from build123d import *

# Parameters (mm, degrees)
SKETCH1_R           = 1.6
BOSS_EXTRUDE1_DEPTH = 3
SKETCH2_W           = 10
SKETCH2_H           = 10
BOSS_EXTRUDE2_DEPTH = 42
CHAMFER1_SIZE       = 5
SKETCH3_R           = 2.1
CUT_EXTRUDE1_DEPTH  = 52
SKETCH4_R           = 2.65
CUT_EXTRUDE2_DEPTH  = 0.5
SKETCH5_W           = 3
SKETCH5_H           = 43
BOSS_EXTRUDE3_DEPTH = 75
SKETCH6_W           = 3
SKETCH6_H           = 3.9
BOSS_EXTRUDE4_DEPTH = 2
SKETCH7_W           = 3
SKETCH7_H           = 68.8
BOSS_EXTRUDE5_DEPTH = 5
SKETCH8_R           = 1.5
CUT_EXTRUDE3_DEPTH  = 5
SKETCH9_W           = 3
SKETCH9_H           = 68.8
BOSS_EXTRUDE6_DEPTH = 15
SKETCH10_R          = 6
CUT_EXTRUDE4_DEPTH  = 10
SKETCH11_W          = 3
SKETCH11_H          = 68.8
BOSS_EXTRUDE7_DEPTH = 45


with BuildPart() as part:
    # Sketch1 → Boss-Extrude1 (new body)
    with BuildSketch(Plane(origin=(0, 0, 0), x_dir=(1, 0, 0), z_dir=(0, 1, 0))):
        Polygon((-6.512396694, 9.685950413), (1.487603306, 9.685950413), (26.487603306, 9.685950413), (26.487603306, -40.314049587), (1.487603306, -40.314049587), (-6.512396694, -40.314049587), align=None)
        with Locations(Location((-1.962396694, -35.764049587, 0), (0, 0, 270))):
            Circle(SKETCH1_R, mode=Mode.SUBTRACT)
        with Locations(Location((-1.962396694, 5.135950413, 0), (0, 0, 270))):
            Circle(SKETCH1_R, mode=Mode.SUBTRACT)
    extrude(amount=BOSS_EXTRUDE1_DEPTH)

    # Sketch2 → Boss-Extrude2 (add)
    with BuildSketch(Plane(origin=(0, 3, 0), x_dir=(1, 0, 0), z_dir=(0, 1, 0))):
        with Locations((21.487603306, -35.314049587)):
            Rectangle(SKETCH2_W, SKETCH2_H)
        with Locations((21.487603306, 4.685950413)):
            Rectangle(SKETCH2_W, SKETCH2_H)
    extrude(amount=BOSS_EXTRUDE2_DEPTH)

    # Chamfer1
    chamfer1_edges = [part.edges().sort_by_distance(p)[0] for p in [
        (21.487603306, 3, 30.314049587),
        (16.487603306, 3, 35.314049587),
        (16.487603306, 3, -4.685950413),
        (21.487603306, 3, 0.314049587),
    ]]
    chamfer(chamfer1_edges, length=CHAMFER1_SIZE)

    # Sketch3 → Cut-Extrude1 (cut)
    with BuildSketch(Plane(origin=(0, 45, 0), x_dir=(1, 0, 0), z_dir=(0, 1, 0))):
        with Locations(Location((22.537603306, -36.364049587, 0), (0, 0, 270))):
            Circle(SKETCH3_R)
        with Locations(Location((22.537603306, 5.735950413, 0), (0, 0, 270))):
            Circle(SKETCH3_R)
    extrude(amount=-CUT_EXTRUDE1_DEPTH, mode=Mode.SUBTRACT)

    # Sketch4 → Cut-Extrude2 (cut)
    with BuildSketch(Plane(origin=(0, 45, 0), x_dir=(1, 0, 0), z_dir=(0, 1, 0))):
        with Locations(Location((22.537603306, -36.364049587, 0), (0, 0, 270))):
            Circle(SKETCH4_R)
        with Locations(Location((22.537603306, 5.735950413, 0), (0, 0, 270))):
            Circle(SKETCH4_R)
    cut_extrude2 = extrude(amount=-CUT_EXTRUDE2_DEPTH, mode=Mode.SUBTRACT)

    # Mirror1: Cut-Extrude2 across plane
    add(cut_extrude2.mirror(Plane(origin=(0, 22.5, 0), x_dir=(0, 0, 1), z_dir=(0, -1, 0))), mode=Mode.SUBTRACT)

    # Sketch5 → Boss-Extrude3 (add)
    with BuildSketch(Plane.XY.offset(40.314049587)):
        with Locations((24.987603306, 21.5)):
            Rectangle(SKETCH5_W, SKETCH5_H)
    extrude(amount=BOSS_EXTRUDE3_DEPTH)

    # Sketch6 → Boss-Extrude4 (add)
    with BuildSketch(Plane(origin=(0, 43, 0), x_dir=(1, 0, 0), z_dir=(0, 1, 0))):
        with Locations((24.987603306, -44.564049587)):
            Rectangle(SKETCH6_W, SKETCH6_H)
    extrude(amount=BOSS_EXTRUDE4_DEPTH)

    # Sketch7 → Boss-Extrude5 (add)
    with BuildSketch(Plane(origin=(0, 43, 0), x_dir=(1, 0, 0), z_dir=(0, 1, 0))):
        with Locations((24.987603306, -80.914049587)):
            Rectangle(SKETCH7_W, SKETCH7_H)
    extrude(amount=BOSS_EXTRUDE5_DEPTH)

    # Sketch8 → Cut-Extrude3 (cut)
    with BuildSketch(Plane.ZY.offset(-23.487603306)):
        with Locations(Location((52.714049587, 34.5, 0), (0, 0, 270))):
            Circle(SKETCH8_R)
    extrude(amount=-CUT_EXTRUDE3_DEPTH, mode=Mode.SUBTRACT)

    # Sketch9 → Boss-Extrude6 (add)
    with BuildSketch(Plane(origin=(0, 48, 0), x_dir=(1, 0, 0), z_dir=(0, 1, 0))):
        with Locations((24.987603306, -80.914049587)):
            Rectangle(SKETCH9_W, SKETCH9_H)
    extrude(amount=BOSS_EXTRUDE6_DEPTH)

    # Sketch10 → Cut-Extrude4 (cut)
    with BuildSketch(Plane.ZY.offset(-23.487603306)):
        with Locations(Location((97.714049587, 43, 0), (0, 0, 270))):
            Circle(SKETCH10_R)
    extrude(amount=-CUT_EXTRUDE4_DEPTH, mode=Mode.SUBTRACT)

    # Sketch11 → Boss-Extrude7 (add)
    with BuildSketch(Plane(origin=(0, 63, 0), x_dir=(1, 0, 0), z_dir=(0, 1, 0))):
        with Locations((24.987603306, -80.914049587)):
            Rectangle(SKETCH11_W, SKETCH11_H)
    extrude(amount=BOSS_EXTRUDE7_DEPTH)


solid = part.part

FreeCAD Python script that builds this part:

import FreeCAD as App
import Part
import Sketcher
from FreeCAD import Vector


def edges_at(feature, points):
    """Names of the edges that pass closest to the given points."""
    edges = feature.Shape.Edges
    near = lambda p: min(range(len(edges)), key=lambda i: edges[i].distToShape(Part.Vertex(*p))[0])
    return sorted({f"Edge{near(p) + 1}" for p in points})

doc = App.newDocument("Part")
body = doc.addObject("PartDesign::Body", "Body")

# Sketch on XZ plane
sketch1 = body.newObject("Sketcher::SketchObject", "Sketch")
sketch1.AttachmentSupport = (doc.getObject("XZ_Plane"), [""])
sketch1.MapMode = "FlatFace"
sketch1.addGeometry([
    Part.LineSegment(Vector(26.487603, -9.68595, 0), Vector(-6.512397, -9.68595, 0)),  # 0
    Part.LineSegment(Vector(-6.512397, -9.68595, 0), Vector(-6.512397, 40.31405, 0)),  # 1
    Part.LineSegment(Vector(-6.512397, 40.31405, 0), Vector(26.487603, 40.31405, 0)),  # 2
    Part.LineSegment(Vector(26.487603, 40.31405, 0), Vector(26.487603, -9.68595, 0)),  # 3
    Part.Circle(Vector(-1.962397, 35.76405, 0), Vector(0, 0, 1), 1.6),  # 4
    Part.Circle(Vector(-1.962397, -5.13595, 0), Vector(0, 0, 1), 1.6),  # 5
], False)
sketch1.addConstraint([
    Sketcher.Constraint("Coincident", 0, 2, 1, 1),
    Sketcher.Constraint("Coincident", 1, 2, 2, 1),
    Sketcher.Constraint("Coincident", 2, 2, 3, 1),
    Sketcher.Constraint("Coincident", 3, 2, 0, 1),
    Sketcher.Constraint("Horizontal", 0),
    Sketcher.Constraint("Vertical", 1),
    Sketcher.Constraint("Horizontal", 2),
    Sketcher.Constraint("Vertical", 3),
    Sketcher.Constraint("Equal", 4, 5),
    Sketcher.Constraint("Vertical", 4, 3, 5, 3),
    Sketcher.Constraint("Diameter", 4, 3.2),
    Sketcher.Constraint("DistanceX", 0, 2, 0, 1, 33.0),
    Sketcher.Constraint("DistanceY", 1, 1, 1, 2, 50.0),
    Sketcher.Constraint("DistanceY", 5, 3, 4, 3, 40.9),
    Sketcher.Constraint("DistanceX", 0, 2, 5, 3, 4.55),
    Sketcher.Constraint("DistanceY", 0, 2, 5, 3, 4.55),
    Sketcher.Constraint("DistanceY", -1, 1, 4, 3, 35.76405),
    Sketcher.Constraint("DistanceX", 4, 3, -1, 1, 1.962397),
])
pad1 = body.newObject("PartDesign::Pad", "Pad")
pad1.Profile = sketch1
pad1.Length = 3
pad1.Reversed = True

# Sketch on XZ plane
sketch2 = body.newObject("Sketcher::SketchObject", "Sketch001")
sketch2.AttachmentSupport = (doc.getObject("XZ_Plane"), [""])
sketch2.MapMode = "FlatFace"
sketch2.AttachmentOffset = App.Placement(Vector(0, 0, -3), App.Rotation())
sketch2.addGeometry([
    Part.LineSegment(Vector(16.487603, 30.31405, 0), Vector(16.487603, 40.31405, 0)),  # 0
    Part.LineSegment(Vector(16.487603, 40.31405, 0), Vector(26.487603, 40.31405, 0)),  # 1
    Part.LineSegment(Vector(26.487603, 40.31405, 0), Vector(26.487603, 30.31405, 0)),  # 2
    Part.LineSegment(Vector(26.487603, 30.31405, 0), Vector(16.487603, 30.31405, 0)),  # 3
    Part.LineSegment(Vector(16.487603, -9.68595, 0), Vector(16.487603, 0.31405, 0)),  # 4
    Part.LineSegment(Vector(16.487603, 0.31405, 0), Vector(26.487603, 0.31405, 0)),  # 5
    Part.LineSegment(Vector(26.487603, 0.31405, 0), Vector(26.487603, -9.68595, 0)),  # 6
    Part.LineSegment(Vector(26.487603, -9.68595, 0), Vector(16.487603, -9.68595, 0)),  # 7
], False)
sketch2.addConstraint([
    Sketcher.Constraint("Coincident", 0, 2, 1, 1),
    Sketcher.Constraint("Coincident", 1, 2, 2, 1),
    Sketcher.Constraint("Coincident", 2, 2, 3, 1),
    Sketcher.Constraint("Coincident", 3, 2, 0, 1),
    Sketcher.Constraint("Coincident", 4, 2, 5, 1),
    Sketcher.Constraint("Coincident", 5, 2, 6, 1),
    Sketcher.Constraint("Coincident", 6, 2, 7, 1),
    Sketcher.Constraint("Coincident", 7, 2, 4, 1),
    Sketcher.Constraint("Vertical", 0),
    Sketcher.Constraint("Horizontal", 1),
    Sketcher.Constraint("Vertical", 2),
    Sketcher.Constraint("Horizontal", 3),
    Sketcher.Constraint("Vertical", 4),
    Sketcher.Constraint("Horizontal", 5),
    Sketcher.Constraint("Vertical", 6),
    Sketcher.Constraint("Horizontal", 7),
    Sketcher.Constraint("Vertical", 3, 2, 4, 2),
    Sketcher.Constraint("Vertical", 2, 2, 5, 2),
    Sketcher.Constraint("Equal", 7, 0),
    Sketcher.Constraint("Equal", 2, 4),
    Sketcher.Constraint("DistanceX", 1, 1, 1, 2, 10.0),
    Sketcher.Constraint("DistanceY", 4, 2, 3, 2, 30.0),
    Sketcher.Constraint("DistanceY", -1, 1, 0, 2, 40.31405),
    Sketcher.Constraint("DistanceX", -1, 1, 0, 2, 16.487603),
])
pad2 = body.newObject("PartDesign::Pad", "Pad001")
pad2.Profile = sketch2
pad2.Length = 42
pad2.Reversed = True
doc.recompute()

chamfer = body.newObject("PartDesign::Chamfer", "Chamfer")
chamfer.Base = (pad2, edges_at(pad2, [
    (21.488, 3, 30.314),
    (16.488, 3, 35.314),
    (16.488, 3, -4.686),
    (21.488, 3, 0.314),
]))
chamfer.Size = 5

# Sketch on XZ plane
sketch3 = body.newObject("Sketcher::SketchObject", "Sketch002")
sketch3.AttachmentSupport = (doc.getObject("XZ_Plane"), [""])
sketch3.MapMode = "FlatFace"
sketch3.AttachmentOffset = App.Placement(Vector(0, 0, -45), App.Rotation())
sketch3.addGeometry([
    Part.Circle(Vector(22.537603, 36.36405, 0), Vector(0, 0, 1), 2.1),
    Part.Circle(Vector(22.537603, -5.73595, 0), Vector(0, 0, 1), 2.1),
], False)
sketch3.addConstraint([
    Sketcher.Constraint("Equal", 0, 1),
    Sketcher.Constraint("Vertical", 0, 3, 1, 3),
    Sketcher.Constraint("Diameter", 0, 4.2),
    Sketcher.Constraint("DistanceY", 1, 3, 0, 3, 42.1),
    Sketcher.Constraint("DistanceY", -1, 1, 0, 3, 36.36405),
    Sketcher.Constraint("DistanceX", -1, 1, 0, 3, 22.537603),
])
pocket1 = body.newObject("PartDesign::Pocket", "Pocket")
pocket1.Profile = sketch3
pocket1.Length = 52
pocket1.Reversed = True

# Sketch on XZ plane
sketch4 = body.newObject("Sketcher::SketchObject", "Sketch003")
sketch4.AttachmentSupport = (doc.getObject("XZ_Plane"), [""])
sketch4.MapMode = "FlatFace"
sketch4.AttachmentOffset = App.Placement(Vector(0, 0, -45), App.Rotation())
sketch4.addGeometry([
    Part.Circle(Vector(22.537603, 36.36405, 0), Vector(0, 0, 1), 2.65),
    Part.Circle(Vector(22.537603, -5.73595, 0), Vector(0, 0, 1), 2.65),
], False)
sketch4.addConstraint([
    Sketcher.Constraint("Equal", 0, 1),
    Sketcher.Constraint("Vertical", 0, 3, 1, 3),
    Sketcher.Constraint("Diameter", 0, 5.3),
    Sketcher.Constraint("DistanceY", 1, 3, 0, 3, 42.1),
    Sketcher.Constraint("DistanceY", -1, 1, 0, 3, 36.36405),
    Sketcher.Constraint("DistanceX", -1, 1, 0, 3, 22.537603),
])
pocket2 = body.newObject("PartDesign::Pocket", "Pocket001")
pocket2.Profile = sketch4
pocket2.Length = 0.5
pocket2.Reversed = True
doc.recompute()

datumplane = body.newObject("PartDesign::Plane", "DatumPlane")
datumplane.AttachmentSupport = (doc.getObject("XZ_Plane"), [""])
datumplane.MapMode = "FlatFace"
datumplane.AttachmentOffset = App.Placement(Vector(0, 0, -22.5), App.Rotation())
mirrored = body.newObject("PartDesign::Mirrored", "Mirrored")
mirrored.Originals = [pocket2]
mirrored.MirrorPlane = (datumplane, [""])
body.Tip = mirrored

# Sketch on XY plane
sketch5 = body.newObject("Sketcher::SketchObject", "Sketch004")
sketch5.AttachmentSupport = (doc.getObject("XY_Plane"), [""])
sketch5.MapMode = "FlatFace"
sketch5.AttachmentOffset = App.Placement(Vector(0, 0, 40.31405), App.Rotation())
sketch5.addGeometry([
    Part.LineSegment(Vector(23.487603, 43, 0), Vector(23.487603, 0, 0)),
    Part.LineSegment(Vector(23.487603, 0, 0), Vector(26.487603, 0, 0)),
    Part.LineSegment(Vector(26.487603, 0, 0), Vector(26.487603, 43, 0)),
    Part.LineSegment(Vector(26.487603, 43, 0), Vector(23.487603, 43, 0)),
], False)
sketch5.addConstraint([
    Sketcher.Constraint("Coincident", 0, 2, 1, 1),
    Sketcher.Constraint("Coincident", 1, 2, 2, 1),
    Sketcher.Constraint("Coincident", 2, 2, 3, 1),
    Sketcher.Constraint("Coincident", 3, 2, 0, 1),
    Sketcher.Constraint("Vertical", 0),
    Sketcher.Constraint("Horizontal", 1),
    Sketcher.Constraint("Vertical", 2),
    Sketcher.Constraint("Horizontal", 3),
    Sketcher.Constraint("PointOnObject", 0, 2, -1),
    Sketcher.Constraint("DistanceX", 1, 1, 1, 2, 3.0),
    Sketcher.Constraint("DistanceY", 0, 2, 0, 1, 43.0),
    Sketcher.Constraint("DistanceX", -1, 1, 0, 2, 23.487603),
])
pad3 = body.newObject("PartDesign::Pad", "Pad002")
pad3.Profile = sketch5
pad3.Length = 75

# Sketch on XZ plane
sketch6 = body.newObject("Sketcher::SketchObject", "Sketch005")
sketch6.AttachmentSupport = (doc.getObject("XZ_Plane"), [""])
sketch6.MapMode = "FlatFace"
sketch6.AttachmentOffset = App.Placement(Vector(0, 0, -43), App.Rotation())
sketch6.addGeometry([
    Part.LineSegment(Vector(23.487603, 42.61405, 0), Vector(23.487603, 46.51405, 0)),
    Part.LineSegment(Vector(23.487603, 46.51405, 0), Vector(26.487603, 46.51405, 0)),
    Part.LineSegment(Vector(26.487603, 46.51405, 0), Vector(26.487603, 42.61405, 0)),
    Part.LineSegment(Vector(26.487603, 42.61405, 0), Vector(23.487603, 42.61405, 0)),
], False)
sketch6.addConstraint([
    Sketcher.Constraint("Coincident", 0, 2, 1, 1),
    Sketcher.Constraint("Coincident", 1, 2, 2, 1),
    Sketcher.Constraint("Coincident", 2, 2, 3, 1),
    Sketcher.Constraint("Coincident", 3, 2, 0, 1),
    Sketcher.Constraint("Vertical", 0),
    Sketcher.Constraint("Horizontal", 1),
    Sketcher.Constraint("Vertical", 2),
    Sketcher.Constraint("Horizontal", 3),
    Sketcher.Constraint("DistanceX", 1, 1, 1, 2, 3.0),
    Sketcher.Constraint("DistanceY", 0, 1, 0, 2, 3.9),
    Sketcher.Constraint("DistanceY", -1, 1, 0, 2, 46.51405),
    Sketcher.Constraint("DistanceX", -1, 1, 0, 2, 23.487603),
])
pad4 = body.newObject("PartDesign::Pad", "Pad003")
pad4.Profile = sketch6
pad4.Length = 2
pad4.Reversed = True

# Sketch on XZ plane
sketch7 = body.newObject("Sketcher::SketchObject", "Sketch006")
sketch7.AttachmentSupport = (doc.getObject("XZ_Plane"), [""])
sketch7.MapMode = "FlatFace"
sketch7.AttachmentOffset = App.Placement(Vector(0, 0, -43), App.Rotation())
sketch7.addGeometry([
    Part.LineSegment(Vector(23.487603, 46.51405, 0), Vector(23.487603, 115.31405, 0)),
    Part.LineSegment(Vector(23.487603, 115.31405, 0), Vector(26.487603, 115.31405, 0)),
    Part.LineSegment(Vector(26.487603, 115.31405, 0), Vector(26.487603, 46.51405, 0)),
    Part.LineSegment(Vector(26.487603, 46.51405, 0), Vector(23.487603, 46.51405, 0)),
], False)
sketch7.addConstraint([
    Sketcher.Constraint("Coincident", 0, 2, 1, 1),
    Sketcher.Constraint("Coincident", 1, 2, 2, 1),
    Sketcher.Constraint("Coincident", 2, 2, 3, 1),
    Sketcher.Constraint("Coincident", 3, 2, 0, 1),
    Sketcher.Constraint("Vertical", 0),
    Sketcher.Constraint("Horizontal", 1),
    Sketcher.Constraint("Vertical", 2),
    Sketcher.Constraint("Horizontal", 3),
    Sketcher.Constraint("DistanceX", 1, 1, 1, 2, 3.0),
    Sketcher.Constraint("DistanceY", 0, 1, 0, 2, 68.8),
    Sketcher.Constraint("DistanceY", -1, 1, 0, 2, 115.31405),
    Sketcher.Constraint("DistanceX", -1, 1, 0, 2, 23.487603),
])
pad5 = body.newObject("PartDesign::Pad", "Pad004")
pad5.Profile = sketch7
pad5.Length = 5
pad5.Reversed = True

# Sketch on YZ plane
sketch8 = body.newObject("Sketcher::SketchObject", "Sketch007")
sketch8.AttachmentSupport = (doc.getObject("YZ_Plane"), [""])
sketch8.MapMode = "FlatFace"
sketch8.AttachmentOffset = App.Placement(Vector(0, 0, 23.487603), App.Rotation())
sketch8.addGeometry(Part.Circle(Vector(34.5, 52.71405, 0), Vector(0, 0, 1), 1.5), False)
sketch8.addConstraint([
    Sketcher.Constraint("Diameter", 0, 3.0),
    Sketcher.Constraint("DistanceX", -1, 1, 0, 3, 34.5),
    Sketcher.Constraint("DistanceY", -1, 1, 0, 3, 52.71405),
])
pocket3 = body.newObject("PartDesign::Pocket", "Pocket002")
pocket3.Profile = sketch8
pocket3.Length = 5
pocket3.Reversed = True

# Sketch on XZ plane
sketch9 = body.newObject("Sketcher::SketchObject", "Sketch008")
sketch9.AttachmentSupport = (doc.getObject("XZ_Plane"), [""])
sketch9.MapMode = "FlatFace"
sketch9.AttachmentOffset = App.Placement(Vector(0, 0, -48), App.Rotation())
sketch9.addGeometry([
    Part.LineSegment(Vector(23.487603, 46.51405, 0), Vector(23.487603, 115.31405, 0)),
    Part.LineSegment(Vector(23.487603, 115.31405, 0), Vector(26.487603, 115.31405, 0)),
    Part.LineSegment(Vector(26.487603, 115.31405, 0), Vector(26.487603, 46.51405, 0)),
    Part.LineSegment(Vector(26.487603, 46.51405, 0), Vector(23.487603, 46.51405, 0)),
], False)
sketch9.addConstraint([
    Sketcher.Constraint("Coincident", 0, 2, 1, 1),
    Sketcher.Constraint("Coincident", 1, 2, 2, 1),
    Sketcher.Constraint("Coincident", 2, 2, 3, 1),
    Sketcher.Constraint("Coincident", 3, 2, 0, 1),
    Sketcher.Constraint("Vertical", 0),
    Sketcher.Constraint("Horizontal", 1),
    Sketcher.Constraint("Vertical", 2),
    Sketcher.Constraint("Horizontal", 3),
    Sketcher.Constraint("DistanceX", 1, 1, 1, 2, 3.0),
    Sketcher.Constraint("DistanceY", 0, 1, 0, 2, 68.8),
    Sketcher.Constraint("DistanceY", -1, 1, 0, 2, 115.31405),
    Sketcher.Constraint("DistanceX", -1, 1, 0, 2, 23.487603),
])
pad6 = body.newObject("PartDesign::Pad", "Pad005")
pad6.Profile = sketch9
pad6.Length = 15
pad6.Reversed = True

# Sketch on YZ plane
sketch10 = body.newObject("Sketcher::SketchObject", "Sketch009")
sketch10.AttachmentSupport = (doc.getObject("YZ_Plane"), [""])
sketch10.MapMode = "FlatFace"
sketch10.AttachmentOffset = App.Placement(Vector(0, 0, 23.487603), App.Rotation())
sketch10.addGeometry(Part.Circle(Vector(43, 97.71405, 0), Vector(0, 0, 1), 6), False)
sketch10.addConstraint([
    Sketcher.Constraint("Diameter", 0, 12.0),
    Sketcher.Constraint("DistanceX", -1, 1, 0, 3, 43.0),
    Sketcher.Constraint("DistanceY", -1, 1, 0, 3, 97.71405),
])
pocket4 = body.newObject("PartDesign::Pocket", "Pocket003")
pocket4.Profile = sketch10
pocket4.Length = 10
pocket4.Reversed = True

# Sketch on XZ plane
sketch11 = body.newObject("Sketcher::SketchObject", "Sketch010")
sketch11.AttachmentSupport = (doc.getObject("XZ_Plane"), [""])
sketch11.MapMode = "FlatFace"
sketch11.AttachmentOffset = App.Placement(Vector(0, 0, -63), App.Rotation())
sketch11.addGeometry([
    Part.LineSegment(Vector(23.487603, 46.51405, 0), Vector(23.487603, 115.31405, 0)),
    Part.LineSegment(Vector(23.487603, 115.31405, 0), Vector(26.487603, 115.31405, 0)),
    Part.LineSegment(Vector(26.487603, 115.31405, 0), Vector(26.487603, 46.51405, 0)),
    Part.LineSegment(Vector(26.487603, 46.51405, 0), Vector(23.487603, 46.51405, 0)),
], False)
sketch11.addConstraint([
    Sketcher.Constraint("Coincident", 0, 2, 1, 1),
    Sketcher.Constraint("Coincident", 1, 2, 2, 1),
    Sketcher.Constraint("Coincident", 2, 2, 3, 1),
    Sketcher.Constraint("Coincident", 3, 2, 0, 1),
    Sketcher.Constraint("Vertical", 0),
    Sketcher.Constraint("Horizontal", 1),
    Sketcher.Constraint("Vertical", 2),
    Sketcher.Constraint("Horizontal", 3),
    Sketcher.Constraint("DistanceX", 1, 1, 1, 2, 3.0),
    Sketcher.Constraint("DistanceY", 0, 1, 0, 2, 68.8),
    Sketcher.Constraint("DistanceY", -1, 1, 0, 2, 115.31405),
    Sketcher.Constraint("DistanceX", -1, 1, 0, 2, 23.487603),
])
pad7 = body.newObject("PartDesign::Pad", "Pad006")
pad7.Profile = sketch11
pad7.Length = 45
pad7.Reversed = True

doc.recompute()
